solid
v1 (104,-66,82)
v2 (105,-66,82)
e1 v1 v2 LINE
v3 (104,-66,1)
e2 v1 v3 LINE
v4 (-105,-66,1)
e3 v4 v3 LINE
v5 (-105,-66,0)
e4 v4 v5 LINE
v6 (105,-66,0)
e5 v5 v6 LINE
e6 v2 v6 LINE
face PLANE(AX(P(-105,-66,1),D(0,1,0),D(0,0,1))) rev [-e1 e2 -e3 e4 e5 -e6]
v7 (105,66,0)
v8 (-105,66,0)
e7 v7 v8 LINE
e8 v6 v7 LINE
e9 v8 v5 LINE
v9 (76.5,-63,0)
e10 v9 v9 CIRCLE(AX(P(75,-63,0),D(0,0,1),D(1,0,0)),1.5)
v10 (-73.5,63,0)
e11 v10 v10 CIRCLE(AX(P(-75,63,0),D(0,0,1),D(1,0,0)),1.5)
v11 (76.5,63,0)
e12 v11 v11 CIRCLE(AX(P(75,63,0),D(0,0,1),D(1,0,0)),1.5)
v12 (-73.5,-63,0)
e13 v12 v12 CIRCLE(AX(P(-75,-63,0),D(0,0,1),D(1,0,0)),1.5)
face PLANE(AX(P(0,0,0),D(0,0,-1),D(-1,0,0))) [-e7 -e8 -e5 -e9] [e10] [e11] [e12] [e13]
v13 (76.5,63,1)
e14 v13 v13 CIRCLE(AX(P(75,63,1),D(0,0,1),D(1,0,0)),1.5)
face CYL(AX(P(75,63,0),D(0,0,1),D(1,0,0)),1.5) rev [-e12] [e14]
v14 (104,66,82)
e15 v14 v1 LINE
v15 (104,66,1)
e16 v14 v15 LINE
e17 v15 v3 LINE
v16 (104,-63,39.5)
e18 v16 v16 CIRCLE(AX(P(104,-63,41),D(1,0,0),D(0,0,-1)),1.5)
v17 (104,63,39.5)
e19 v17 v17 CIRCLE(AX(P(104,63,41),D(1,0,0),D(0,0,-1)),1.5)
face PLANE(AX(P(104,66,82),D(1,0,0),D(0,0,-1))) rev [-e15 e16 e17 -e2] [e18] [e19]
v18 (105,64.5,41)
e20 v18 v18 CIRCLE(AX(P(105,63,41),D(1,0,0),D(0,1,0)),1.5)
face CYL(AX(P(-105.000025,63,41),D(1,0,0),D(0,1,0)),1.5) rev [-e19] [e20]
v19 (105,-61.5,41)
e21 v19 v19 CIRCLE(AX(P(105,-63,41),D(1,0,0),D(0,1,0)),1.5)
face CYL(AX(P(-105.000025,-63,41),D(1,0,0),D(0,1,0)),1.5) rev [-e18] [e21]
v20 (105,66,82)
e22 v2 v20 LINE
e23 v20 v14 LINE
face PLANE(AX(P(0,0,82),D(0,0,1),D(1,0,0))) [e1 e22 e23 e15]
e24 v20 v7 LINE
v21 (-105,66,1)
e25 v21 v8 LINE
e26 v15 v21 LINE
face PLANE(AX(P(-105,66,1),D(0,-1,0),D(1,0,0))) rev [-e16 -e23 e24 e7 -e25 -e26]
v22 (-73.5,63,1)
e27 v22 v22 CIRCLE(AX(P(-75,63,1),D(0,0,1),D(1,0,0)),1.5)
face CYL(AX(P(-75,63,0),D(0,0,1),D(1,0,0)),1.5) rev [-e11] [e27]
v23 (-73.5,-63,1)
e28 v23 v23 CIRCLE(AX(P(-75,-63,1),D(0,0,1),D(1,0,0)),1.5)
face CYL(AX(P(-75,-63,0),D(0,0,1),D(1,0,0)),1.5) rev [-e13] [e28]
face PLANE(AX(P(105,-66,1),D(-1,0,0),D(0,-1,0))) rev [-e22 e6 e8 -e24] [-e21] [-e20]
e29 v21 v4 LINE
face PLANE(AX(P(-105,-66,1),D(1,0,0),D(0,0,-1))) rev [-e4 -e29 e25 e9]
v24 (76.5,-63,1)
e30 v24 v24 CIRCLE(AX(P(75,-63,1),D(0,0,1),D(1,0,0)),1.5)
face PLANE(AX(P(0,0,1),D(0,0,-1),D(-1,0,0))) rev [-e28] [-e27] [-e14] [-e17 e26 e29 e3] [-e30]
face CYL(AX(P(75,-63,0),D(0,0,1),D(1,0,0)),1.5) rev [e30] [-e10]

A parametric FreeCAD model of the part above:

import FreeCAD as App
import Part
import Sketcher
Q = App.Units.Quantity

doc = App.newDocument("Part")
body = doc.addObject("PartDesign::Body", "Body")

# Sketch on XY plane
sketch1 = doc.addObject("Sketcher::SketchObject", "Sketch")
body.addObject(sketch1)
sketch1.AttachmentSupport = (doc.XY_Plane, [""])
sketch1.MapMode = "FlatFace"
sketch1.addGeometry([
    Part.LineSegment(App.Vector(-105, 66, 0), App.Vector(-105, -66, 0)),
    Part.LineSegment(App.Vector(-105, -66, 0), App.Vector(105, -66, 0)),
    Part.LineSegment(App.Vector(105, -66, 0), App.Vector(105, 66, 0)),
    Part.LineSegment(App.Vector(105, 66, 0), App.Vector(-105, 66, 0)),
], False)
sketch1.addConstraint([
    Sketcher.Constraint("Coincident", 0, 2, 1, 1),
    Sketcher.Constraint("Coincident", 1, 2, 2, 1),
    Sketcher.Constraint("Coincident", 2, 2, 3, 1),
    Sketcher.Constraint("Coincident", 3, 2, 0, 1),
    Sketcher.Constraint("Vertical", 0),
    Sketcher.Constraint("Horizontal", 1),
    Sketcher.Constraint("Vertical", 2),
    Sketcher.Constraint("Horizontal", 3),
    Sketcher.Constraint("Symmetric", 0, 2, 2, 2, -1, 1),
    Sketcher.Constraint("DistanceX", 1, 1, 1, 2, Q("210 mm")),
    Sketcher.Constraint("DistanceY", 0, 2, 0, 1, Q("132 mm")),
])
pad1 = doc.addObject("PartDesign::Pad", "Pad")
body.addObject(pad1)
pad1.Profile = sketch1
pad1.Length = 1

# Sketch on XY plane
sketch2 = doc.addObject("Sketcher::SketchObject", "Sketch001")
body.addObject(sketch2)
sketch2.AttachmentSupport = (doc.XY_Plane, [""])
sketch2.MapMode = "FlatFace"
sketch2.AttachmentOffset = App.Placement(App.Vector(0, 0, 1), App.Rotation())
sketch2.addGeometry([
    Part.LineSegment(App.Vector(104, 66, 0), App.Vector(104, -66, 0)),
    Part.LineSegment(App.Vector(104, -66, 0), App.Vector(105, -66, 0)),
    Part.LineSegment(App.Vector(105, -66, 0), App.Vector(105, 66, 0)),
    Part.LineSegment(App.Vector(105, 66, 0), App.Vector(104, 66, 0)),
], False)
sketch2.addConstraint([
    Sketcher.Constraint("Coincident", 0, 2, 1, 1),
    Sketcher.Constraint("Coincident", 1, 2, 2, 1),
    Sketcher.Constraint("Coincident", 2, 2, 3, 1),
    Sketcher.Constraint("Coincident", 3, 2, 0, 1),
    Sketcher.Constraint("Vertical", 0),
    Sketcher.Constraint("Horizontal", 1),
    Sketcher.Constraint("Vertical", 2),
    Sketcher.Constraint("Horizontal", 3),
    Sketcher.Constraint("DistanceX", 1, 1, 1, 2, Q("1 mm")),
    Sketcher.Constraint("DistanceY", 0, 2, 0, 1, Q("132 mm")),
    Sketcher.Constraint("DistanceX", -1, 1, 0, 2, Q("104 mm")),
    Sketcher.Constraint("DistanceY", 0, 2, -1, 1, Q("66 mm")),
])
pad2 = doc.addObject("PartDesign::Pad", "Pad001")
body.addObject(pad2)
pad2.Profile = sketch2
pad2.Length = 81

# Sketch on XY plane
sketch3 = doc.addObject("Sketcher::SketchObject", "Sketch002")
body.addObject(sketch3)
sketch3.AttachmentSupport = (doc.XY_Plane, [""])
sketch3.MapMode = "FlatFace"
sketch3.AttachmentOffset = App.Placement(App.Vector(0, 0, 1), App.Rotation())
sketch3.addGeometry([
    Part.Circle(App.Vector(-75, 63, 0), App.Vector(0, 0, 1), 1.5),
    Part.Circle(App.Vector(75, 63, 0), App.Vector(0, 0, 1), 1.5),
    Part.Circle(App.Vector(75, -63, 0), App.Vector(0, 0, 1), 1.5),
    Part.Circle(App.Vector(-75, -63, 0), App.Vector(0, 0, 1), 1.5),
], False)
sketch3.addConstraint([
    Sketcher.Constraint("Equal", 0, 1),
    Sketcher.Constraint("Equal", 1, 2),
    Sketcher.Constraint("Equal", 2, 3),
    Sketcher.Constraint("Symmetric", 0, 3, 2, 3, -1, 1),
    Sketcher.Constraint("Symmetric", 1, 3, 3, 3, -1, 1),
    Sketcher.Constraint("Symmetric", 0, 3, 1, 3, -2),
    Sketcher.Constraint("Diameter", 0, Q("3 mm")),
    Sketcher.Constraint("DistanceX", 0, 3, -1, 1, Q("75 mm")),
    Sketcher.Constraint("DistanceY", -1, 1, 0, 3, Q("63 mm")),
])
pocket1 = doc.addObject("PartDesign::Pocket", "Pocket")
body.addObject(pocket1)
pocket1.Profile = sketch3
pocket1.Length = 1

# Sketch on YZ plane
sketch4 = doc.addObject("Sketcher::SketchObject", "Sketch003")
body.addObject(sketch4)
sketch4.AttachmentSupport = (doc.YZ_Plane, [""])
sketch4.MapMode = "FlatFace"
sketch4.AttachmentOffset = App.Placement(App.Vector(0, 0, 105), App.Rotation())
sketch4.addGeometry([
    Part.Circle(App.Vector(63, 41, 0), App.Vector(0, 0, 1), 1.5),
    Part.Circle(App.Vector(-63, 41, 0), App.Vector(0, 0, 1), 1.5),
], False)
sketch4.addConstraint([
    Sketcher.Constraint("Equal", 0, 1),
    Sketcher.Constraint("Symmetric", 0, 3, 1, 3, -2),
    Sketcher.Constraint("Diameter", 0, Q("3 mm")),
    Sketcher.Constraint("DistanceX", -1, 1, 0, 3, Q("63 mm")),
    Sketcher.Constraint("DistanceY", -1, 1, 0, 3, Q("41 mm")),
])
pocket2 = doc.addObject("PartDesign::Pocket", "Pocket001")
body.addObject(pocket2)
pocket2.Profile = sketch4
pocket2.Type = "ThroughAll"

doc.recompute()
